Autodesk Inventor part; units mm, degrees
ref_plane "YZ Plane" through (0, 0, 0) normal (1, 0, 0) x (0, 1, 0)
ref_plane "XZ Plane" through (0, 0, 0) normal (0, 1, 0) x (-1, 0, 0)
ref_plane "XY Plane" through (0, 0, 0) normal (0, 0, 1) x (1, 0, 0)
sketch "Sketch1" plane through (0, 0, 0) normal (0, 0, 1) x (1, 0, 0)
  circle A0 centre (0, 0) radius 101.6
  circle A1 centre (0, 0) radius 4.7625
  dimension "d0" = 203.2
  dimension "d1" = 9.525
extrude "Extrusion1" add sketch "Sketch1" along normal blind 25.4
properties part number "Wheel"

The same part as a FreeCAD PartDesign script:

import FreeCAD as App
import Part
import Sketcher
Q = App.Units.Quantity

doc = App.newDocument("Part")
params = doc.addObject("Spreadsheet::Sheet", "Params")
for row, (alias, value) in enumerate([
    ("sketch1_diameter", "8 in"),
    ("sketch1_diameter2", "0.375 in"),
    ("pad1_length", "1 in"),
], start=1):
    params.set(f"A{row}", alias)
    params.set(f"B{row}", "=" + value)
    params.setAlias(f"B{row}", alias)

body = doc.addObject("PartDesign::Body", "Body")

# Sketch on XY plane
sketch1 = body.newObject("Sketcher::SketchObject", "Sketch")
sketch1.AttachmentSupport = (doc.getObject("XY_Plane"), [""])
sketch1.MapMode = "FlatFace"
sketch1.addGeometry([
    Part.Circle(App.Vector(0, 0, 0), App.Vector(0, 0, 1), 101.6),
    Part.Circle(App.Vector(0, 0, 0), App.Vector(0, 0, 1), 4.8),
], False)
sketch1.addConstraint([
    Sketcher.Constraint("Coincident", 0, 3, -1, 1),
    Sketcher.Constraint("Coincident", 1, 3, -1, 1),
    Sketcher.Constraint("Diameter", 0, Q("8 in")),
    Sketcher.Constraint("Diameter", 1, Q("0.375 in")),
])
sketch1.setExpression("Constraints[2]", "Params.sketch1_diameter")
sketch1.setExpression("Constraints[3]", "Params.sketch1_diameter2")
pad1 = body.newObject("PartDesign::Pad", "Pad")
pad1.Profile = sketch1
pad1.setExpression("Length", "Params.pad1_length")

doc.recompute()
